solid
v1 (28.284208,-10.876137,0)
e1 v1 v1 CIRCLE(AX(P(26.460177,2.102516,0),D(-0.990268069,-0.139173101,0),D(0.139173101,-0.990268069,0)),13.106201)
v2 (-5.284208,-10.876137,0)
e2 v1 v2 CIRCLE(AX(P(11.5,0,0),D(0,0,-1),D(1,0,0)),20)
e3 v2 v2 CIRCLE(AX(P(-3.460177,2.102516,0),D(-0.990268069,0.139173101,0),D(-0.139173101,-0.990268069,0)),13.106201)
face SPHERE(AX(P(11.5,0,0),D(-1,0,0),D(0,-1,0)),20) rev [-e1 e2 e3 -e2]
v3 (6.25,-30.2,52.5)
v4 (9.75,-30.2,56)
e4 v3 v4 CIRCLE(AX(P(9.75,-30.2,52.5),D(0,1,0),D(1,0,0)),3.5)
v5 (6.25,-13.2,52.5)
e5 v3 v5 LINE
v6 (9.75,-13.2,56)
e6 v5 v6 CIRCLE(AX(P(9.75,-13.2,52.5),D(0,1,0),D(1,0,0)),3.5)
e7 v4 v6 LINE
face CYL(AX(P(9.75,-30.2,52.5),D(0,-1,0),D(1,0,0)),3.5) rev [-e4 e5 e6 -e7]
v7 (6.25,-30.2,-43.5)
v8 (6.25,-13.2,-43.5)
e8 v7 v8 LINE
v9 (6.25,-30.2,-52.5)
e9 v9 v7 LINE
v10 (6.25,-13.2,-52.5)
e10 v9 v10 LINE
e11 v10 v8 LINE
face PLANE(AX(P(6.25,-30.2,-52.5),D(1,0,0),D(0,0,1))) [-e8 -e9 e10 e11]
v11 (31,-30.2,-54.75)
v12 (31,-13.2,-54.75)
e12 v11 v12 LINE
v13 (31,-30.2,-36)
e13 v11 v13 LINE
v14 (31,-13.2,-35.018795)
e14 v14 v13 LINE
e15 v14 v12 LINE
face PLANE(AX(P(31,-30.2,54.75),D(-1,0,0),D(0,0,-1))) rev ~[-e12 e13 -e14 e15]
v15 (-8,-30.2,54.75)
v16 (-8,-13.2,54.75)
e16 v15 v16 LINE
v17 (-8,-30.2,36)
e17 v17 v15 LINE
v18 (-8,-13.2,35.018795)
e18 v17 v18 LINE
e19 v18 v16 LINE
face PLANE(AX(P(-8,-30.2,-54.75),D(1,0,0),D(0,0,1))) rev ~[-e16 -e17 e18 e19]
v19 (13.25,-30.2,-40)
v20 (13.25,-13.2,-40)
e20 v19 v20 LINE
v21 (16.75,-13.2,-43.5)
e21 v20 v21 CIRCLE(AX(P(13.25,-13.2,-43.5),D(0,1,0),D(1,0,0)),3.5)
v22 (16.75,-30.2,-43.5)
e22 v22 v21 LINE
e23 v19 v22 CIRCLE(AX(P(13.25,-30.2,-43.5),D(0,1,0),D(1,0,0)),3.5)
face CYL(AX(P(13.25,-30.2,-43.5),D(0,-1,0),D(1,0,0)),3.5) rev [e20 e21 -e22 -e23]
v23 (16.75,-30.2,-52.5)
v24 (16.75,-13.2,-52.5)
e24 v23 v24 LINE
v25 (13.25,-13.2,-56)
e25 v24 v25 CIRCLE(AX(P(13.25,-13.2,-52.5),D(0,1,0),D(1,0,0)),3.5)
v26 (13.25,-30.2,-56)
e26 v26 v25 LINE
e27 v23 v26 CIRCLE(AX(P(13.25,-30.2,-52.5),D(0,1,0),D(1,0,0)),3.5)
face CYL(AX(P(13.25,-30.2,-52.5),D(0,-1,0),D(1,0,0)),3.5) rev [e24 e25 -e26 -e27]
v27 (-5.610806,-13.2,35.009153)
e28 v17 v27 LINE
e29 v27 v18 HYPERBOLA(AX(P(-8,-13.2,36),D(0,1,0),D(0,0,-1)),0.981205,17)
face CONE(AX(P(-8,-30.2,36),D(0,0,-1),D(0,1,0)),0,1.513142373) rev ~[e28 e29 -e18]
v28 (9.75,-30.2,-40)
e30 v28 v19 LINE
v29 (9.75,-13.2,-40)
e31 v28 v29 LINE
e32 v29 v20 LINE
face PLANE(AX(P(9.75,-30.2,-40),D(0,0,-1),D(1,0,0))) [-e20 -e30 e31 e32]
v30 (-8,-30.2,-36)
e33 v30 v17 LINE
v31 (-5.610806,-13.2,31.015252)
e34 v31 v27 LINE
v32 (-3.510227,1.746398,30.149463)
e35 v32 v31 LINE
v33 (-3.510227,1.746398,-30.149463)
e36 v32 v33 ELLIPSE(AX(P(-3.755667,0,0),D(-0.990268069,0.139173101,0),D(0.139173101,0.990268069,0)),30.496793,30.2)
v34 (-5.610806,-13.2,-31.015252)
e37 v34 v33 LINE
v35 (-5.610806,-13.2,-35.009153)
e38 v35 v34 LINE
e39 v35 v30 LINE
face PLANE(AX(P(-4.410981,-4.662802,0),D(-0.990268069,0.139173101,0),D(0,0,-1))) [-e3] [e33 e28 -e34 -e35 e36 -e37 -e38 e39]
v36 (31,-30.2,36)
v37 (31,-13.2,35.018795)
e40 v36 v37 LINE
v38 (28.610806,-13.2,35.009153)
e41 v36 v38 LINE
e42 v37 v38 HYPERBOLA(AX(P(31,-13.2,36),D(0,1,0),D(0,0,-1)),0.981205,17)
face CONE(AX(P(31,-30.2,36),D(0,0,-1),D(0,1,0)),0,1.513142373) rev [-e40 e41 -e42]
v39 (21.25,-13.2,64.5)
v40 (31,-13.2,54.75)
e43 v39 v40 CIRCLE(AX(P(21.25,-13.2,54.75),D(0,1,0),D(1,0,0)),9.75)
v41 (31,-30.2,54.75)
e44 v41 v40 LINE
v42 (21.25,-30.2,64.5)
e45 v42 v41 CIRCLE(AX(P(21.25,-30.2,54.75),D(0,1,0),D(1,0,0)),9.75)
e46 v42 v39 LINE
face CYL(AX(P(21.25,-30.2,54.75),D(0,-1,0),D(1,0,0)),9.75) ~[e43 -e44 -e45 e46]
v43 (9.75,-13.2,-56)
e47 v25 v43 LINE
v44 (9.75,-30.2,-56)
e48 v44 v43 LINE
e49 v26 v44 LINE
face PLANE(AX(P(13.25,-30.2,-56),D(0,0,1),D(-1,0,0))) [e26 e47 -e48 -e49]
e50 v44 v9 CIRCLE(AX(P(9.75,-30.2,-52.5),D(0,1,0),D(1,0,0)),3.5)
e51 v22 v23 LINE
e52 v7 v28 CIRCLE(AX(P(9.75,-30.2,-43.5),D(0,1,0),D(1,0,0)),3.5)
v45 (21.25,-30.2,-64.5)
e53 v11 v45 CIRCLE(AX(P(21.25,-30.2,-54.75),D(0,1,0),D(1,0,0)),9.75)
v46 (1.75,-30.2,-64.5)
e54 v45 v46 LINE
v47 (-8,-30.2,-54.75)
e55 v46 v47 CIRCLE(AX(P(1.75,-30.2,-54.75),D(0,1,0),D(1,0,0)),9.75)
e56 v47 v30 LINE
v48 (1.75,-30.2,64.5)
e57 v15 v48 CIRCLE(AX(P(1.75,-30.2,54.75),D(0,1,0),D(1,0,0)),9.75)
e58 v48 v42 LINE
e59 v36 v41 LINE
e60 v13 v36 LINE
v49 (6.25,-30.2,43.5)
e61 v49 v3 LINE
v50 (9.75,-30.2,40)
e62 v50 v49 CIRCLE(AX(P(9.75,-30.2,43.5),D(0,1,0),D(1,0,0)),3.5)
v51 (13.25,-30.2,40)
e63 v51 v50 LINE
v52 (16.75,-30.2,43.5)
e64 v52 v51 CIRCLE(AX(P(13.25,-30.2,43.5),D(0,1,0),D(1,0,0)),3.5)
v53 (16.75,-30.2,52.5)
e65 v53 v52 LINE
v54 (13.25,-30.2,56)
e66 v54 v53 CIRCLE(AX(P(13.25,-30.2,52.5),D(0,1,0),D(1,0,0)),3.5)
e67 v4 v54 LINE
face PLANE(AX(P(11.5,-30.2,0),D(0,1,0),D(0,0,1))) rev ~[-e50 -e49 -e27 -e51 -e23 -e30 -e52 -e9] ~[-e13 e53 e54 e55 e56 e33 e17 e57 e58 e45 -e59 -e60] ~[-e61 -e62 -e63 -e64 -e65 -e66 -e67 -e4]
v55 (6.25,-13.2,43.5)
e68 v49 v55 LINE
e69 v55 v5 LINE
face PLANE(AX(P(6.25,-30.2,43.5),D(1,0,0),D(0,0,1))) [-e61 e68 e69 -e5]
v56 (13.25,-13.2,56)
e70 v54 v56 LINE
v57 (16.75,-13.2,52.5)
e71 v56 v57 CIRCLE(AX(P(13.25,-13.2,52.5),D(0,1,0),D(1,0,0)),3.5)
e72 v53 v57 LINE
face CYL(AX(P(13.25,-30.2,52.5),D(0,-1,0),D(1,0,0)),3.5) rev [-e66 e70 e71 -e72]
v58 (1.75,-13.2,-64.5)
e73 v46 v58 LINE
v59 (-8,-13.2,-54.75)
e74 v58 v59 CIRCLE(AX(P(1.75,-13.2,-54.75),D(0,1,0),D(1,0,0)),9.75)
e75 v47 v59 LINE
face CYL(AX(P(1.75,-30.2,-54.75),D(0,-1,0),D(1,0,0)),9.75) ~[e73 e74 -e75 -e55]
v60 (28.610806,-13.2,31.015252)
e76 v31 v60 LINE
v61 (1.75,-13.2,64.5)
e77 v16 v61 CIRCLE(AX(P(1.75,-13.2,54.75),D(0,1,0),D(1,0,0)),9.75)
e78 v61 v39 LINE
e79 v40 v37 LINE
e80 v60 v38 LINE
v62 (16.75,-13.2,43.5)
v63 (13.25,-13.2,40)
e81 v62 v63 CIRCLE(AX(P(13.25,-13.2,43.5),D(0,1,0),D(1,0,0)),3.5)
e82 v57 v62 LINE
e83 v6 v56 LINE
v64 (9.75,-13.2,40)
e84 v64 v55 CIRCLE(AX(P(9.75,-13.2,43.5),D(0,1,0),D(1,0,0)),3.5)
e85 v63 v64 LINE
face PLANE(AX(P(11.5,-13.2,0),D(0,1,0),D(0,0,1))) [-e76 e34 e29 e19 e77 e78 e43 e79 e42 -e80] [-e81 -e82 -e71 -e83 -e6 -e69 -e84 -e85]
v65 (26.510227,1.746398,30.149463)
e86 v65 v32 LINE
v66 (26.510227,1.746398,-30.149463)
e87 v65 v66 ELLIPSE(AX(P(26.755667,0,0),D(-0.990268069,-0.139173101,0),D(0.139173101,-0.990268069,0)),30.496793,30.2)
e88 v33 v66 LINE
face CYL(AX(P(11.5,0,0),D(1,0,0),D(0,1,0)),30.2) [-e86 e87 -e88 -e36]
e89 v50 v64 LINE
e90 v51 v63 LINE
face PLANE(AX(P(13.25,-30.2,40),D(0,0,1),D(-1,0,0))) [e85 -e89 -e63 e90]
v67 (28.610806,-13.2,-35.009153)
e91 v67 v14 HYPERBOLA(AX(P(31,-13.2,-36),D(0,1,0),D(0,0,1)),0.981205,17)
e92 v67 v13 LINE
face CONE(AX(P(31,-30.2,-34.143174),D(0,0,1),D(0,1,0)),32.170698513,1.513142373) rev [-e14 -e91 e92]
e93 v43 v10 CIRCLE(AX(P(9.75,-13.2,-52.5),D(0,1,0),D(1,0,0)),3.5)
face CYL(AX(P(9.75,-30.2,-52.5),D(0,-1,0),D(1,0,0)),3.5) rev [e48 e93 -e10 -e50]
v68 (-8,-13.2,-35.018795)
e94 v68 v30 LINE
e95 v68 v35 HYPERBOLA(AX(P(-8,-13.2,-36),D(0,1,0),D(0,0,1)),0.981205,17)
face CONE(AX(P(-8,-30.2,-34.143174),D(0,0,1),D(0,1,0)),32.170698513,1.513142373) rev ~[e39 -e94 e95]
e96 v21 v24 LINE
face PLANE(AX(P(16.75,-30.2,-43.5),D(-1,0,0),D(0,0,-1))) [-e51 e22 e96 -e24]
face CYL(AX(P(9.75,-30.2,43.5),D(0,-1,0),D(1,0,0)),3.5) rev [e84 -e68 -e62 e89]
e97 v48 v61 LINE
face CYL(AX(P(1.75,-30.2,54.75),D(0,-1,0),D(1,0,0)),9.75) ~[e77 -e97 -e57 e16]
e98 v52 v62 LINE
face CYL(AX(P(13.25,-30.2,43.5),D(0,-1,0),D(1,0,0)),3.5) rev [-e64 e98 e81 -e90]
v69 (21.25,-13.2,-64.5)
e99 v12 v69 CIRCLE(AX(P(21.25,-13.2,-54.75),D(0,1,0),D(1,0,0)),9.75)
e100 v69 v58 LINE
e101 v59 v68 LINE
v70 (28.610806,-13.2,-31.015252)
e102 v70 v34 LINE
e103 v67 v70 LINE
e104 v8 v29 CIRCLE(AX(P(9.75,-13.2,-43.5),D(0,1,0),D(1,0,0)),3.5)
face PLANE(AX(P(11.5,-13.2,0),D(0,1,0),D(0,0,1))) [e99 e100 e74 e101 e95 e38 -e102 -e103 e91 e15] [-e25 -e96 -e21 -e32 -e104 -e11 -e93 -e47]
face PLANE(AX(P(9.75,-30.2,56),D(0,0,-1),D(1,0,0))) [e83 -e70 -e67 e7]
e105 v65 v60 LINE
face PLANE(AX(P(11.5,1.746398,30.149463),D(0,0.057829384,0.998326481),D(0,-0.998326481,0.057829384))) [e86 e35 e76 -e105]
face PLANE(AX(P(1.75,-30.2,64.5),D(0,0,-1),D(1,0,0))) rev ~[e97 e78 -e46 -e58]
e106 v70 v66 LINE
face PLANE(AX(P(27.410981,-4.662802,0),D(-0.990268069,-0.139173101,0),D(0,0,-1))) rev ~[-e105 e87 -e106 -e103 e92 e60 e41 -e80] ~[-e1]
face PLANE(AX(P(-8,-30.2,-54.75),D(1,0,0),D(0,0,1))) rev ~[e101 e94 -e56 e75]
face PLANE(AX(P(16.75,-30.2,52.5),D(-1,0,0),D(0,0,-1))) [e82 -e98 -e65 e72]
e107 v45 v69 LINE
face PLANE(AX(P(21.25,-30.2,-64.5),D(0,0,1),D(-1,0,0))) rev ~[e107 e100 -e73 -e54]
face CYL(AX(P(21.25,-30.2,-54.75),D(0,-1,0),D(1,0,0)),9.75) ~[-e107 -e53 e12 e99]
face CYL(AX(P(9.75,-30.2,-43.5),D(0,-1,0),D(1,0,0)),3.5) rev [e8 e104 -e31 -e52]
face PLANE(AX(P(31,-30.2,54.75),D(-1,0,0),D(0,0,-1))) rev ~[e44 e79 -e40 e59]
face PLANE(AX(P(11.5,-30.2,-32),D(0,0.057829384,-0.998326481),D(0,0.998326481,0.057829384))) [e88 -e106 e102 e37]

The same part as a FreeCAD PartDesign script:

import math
import FreeCAD as App
import Part
import Sketcher
Q = App.Units.Quantity

doc = App.newDocument("Part")
params = doc.addObject("Spreadsheet::Sheet", "Params")
for row, (alias, value) in enumerate([
    ("sketch1_radius", "3.5 mm"),
    ("sketch1_height", "9 mm"),
    ("sketch1_radius2", "9.75 mm"),
    ("sketch1_width", "19.5 mm"),
    ("sketch1_width2", "3.5 mm"),
    ("pad1_length", "17 mm"),
    ("sketch2_radius", "30.2 mm"),
    ("sketch2_height", "64 mm"),
    ("sketch2_length", "32 mm"),
    ("pad2_length", "19.5 mm"),
    ("pad2_length2", "19.5 mm"),
    ("sketch3_radius", "34.2 mm"),
    ("sketch3_height", "72 mm"),
    ("groove_angle", "8 deg"),
    ("sketch4_radius", "34.2 mm"),
    ("sketch4_height", "72 mm"),
    ("groove2_angle", "8 deg"),
    ("sketch5_radius", "20 mm"),
    ("groove3_angle", "360 deg"),
], start=1):
    params.set(f"A{row}", alias)
    params.set(f"B{row}", "=" + value)
    params.setAlias(f"B{row}", alias)

body = doc.addObject("PartDesign::Body", "Body")

# Sketch on XZ plane
sketch1 = body.newObject("Sketcher::SketchObject", "Sketch")
sketch1.AttachmentSupport = (doc.getObject("XZ_Plane"), [""])
sketch1.MapMode = "FlatFace"
sketch1.AttachmentOffset = App.Placement(App.Vector(0, 0, 30.2), App.Rotation())
sketch1.addGeometry([
    Part.LineSegment(App.Vector(-8, 54.8, 0), App.Vector(-8, -54.8, 0)),  # 0
    Part.ArcOfCircle(Part.Circle(App.Vector(1.8, -54.8, 0), App.Vector(0, 0, 1), 9.8), math.radians(180), math.radians(270)),  # 1
    Part.LineSegment(App.Vector(1.8, -64.5, 0), App.Vector(21.2, -64.5, 0)),  # 2
    Part.ArcOfCircle(Part.Circle(App.Vector(21.2, -54.8, 0), App.Vector(0, 0, 1), 9.8), math.radians(-90), math.radians(0)),  # 3
    Part.LineSegment(App.Vector(31, -54.8, 0), App.Vector(31, 54.8, 0)),  # 4
    Part.ArcOfCircle(Part.Circle(App.Vector(21.2, 54.8, 0), App.Vector(0, 0, 1), 9.8), math.radians(0), math.radians(90)),  # 5
    Part.LineSegment(App.Vector(21.2, 64.5, 0), App.Vector(1.8, 64.5, 0)),  # 6
    Part.ArcOfCircle(Part.Circle(App.Vector(1.8, 54.8, 0), App.Vector(0, 0, 1), 9.8), math.radians(90), math.radians(180)),  # 7
    Part.LineSegment(App.Vector(6.2, -52.5, 0), App.Vector(6.2, -43.5, 0)),  # 8
    Part.ArcOfCircle(Part.Circle(App.Vector(9.8, -43.5, 0), App.Vector(0, 0, 1), 3.5), math.radians(90), math.radians(180)),  # 9
    Part.LineSegment(App.Vector(9.8, -40, 0), App.Vector(13.2, -40, 0)),  # 10
    Part.ArcOfCircle(Part.Circle(App.Vector(13.2, -43.5, 0), App.Vector(0, 0, 1), 3.5), math.radians(0), math.radians(90)),  # 11
    Part.LineSegment(App.Vector(16.8, -43.5, 0), App.Vector(16.8, -52.5, 0)),  # 12
    Part.ArcOfCircle(Part.Circle(App.Vector(13.2, -52.5, 0), App.Vector(0, 0, 1), 3.5), math.radians(-90), math.radians(0)),  # 13
    Part.LineSegment(App.Vector(13.2, -56, 0), App.Vector(9.8, -56, 0)),  # 14
    Part.ArcOfCircle(Part.Circle(App.Vector(9.8, -52.5, 0), App.Vector(0, 0, 1), 3.5), math.radians(180), math.radians(270)),  # 15
    Part.ArcOfCircle(Part.Circle(App.Vector(9.8, 43.5, 0), App.Vector(0, 0, 1), 3.5), math.radians(180), math.radians(270)),  # 16
    Part.LineSegment(App.Vector(6.2, 43.5, 0), App.Vector(6.2, 52.5, 0)),  # 17
    Part.ArcOfCircle(Part.Circle(App.Vector(9.8, 52.5, 0), App.Vector(0, 0, 1), 3.5), math.radians(90), math.radians(180)),  # 18
    Part.LineSegment(App.Vector(9.8, 56, 0), App.Vector(13.2, 56, 0)),  # 19
    Part.ArcOfCircle(Part.Circle(App.Vector(13.2, 52.5, 0), App.Vector(0, 0, 1), 3.5), math.radians(0), math.radians(90)),  # 20
    Part.LineSegment(App.Vector(16.8, 52.5, 0), App.Vector(16.8, 43.5, 0)),  # 21
    Part.ArcOfCircle(Part.Circle(App.Vector(13.2, 43.5, 0), App.Vector(0, 0, 1), 3.5), math.radians(-90), math.radians(0)),  # 22
    Part.LineSegment(App.Vector(13.2, 40, 0), App.Vector(9.8, 40, 0)),  # 23
], False)
sketch1.addConstraint([
    Sketcher.Constraint("Tangent", 0, 2, 1, 1),
    Sketcher.Constraint("Tangent", 1, 2, 2, 1),
    Sketcher.Constraint("Tangent", 2, 2, 3, 1),
    Sketcher.Constraint("Tangent", 3, 2, 4, 1),
    Sketcher.Constraint("Tangent", 4, 2, 5, 1),
    Sketcher.Constraint("Tangent", 5, 2, 6, 1),
    Sketcher.Constraint("Tangent", 6, 2, 7, 1),
    Sketcher.Constraint("Tangent", 7, 2, 0, 1),
    Sketcher.Constraint("Tangent", 8, 2, 9, 2),
    Sketcher.Constraint("Tangent", 9, 1, 10, 1),
    Sketcher.Constraint("Tangent", 10, 2, 11, 2),
    Sketcher.Constraint("Tangent", 11, 1, 12, 1),
    Sketcher.Constraint("Tangent", 12, 2, 13, 2),
    Sketcher.Constraint("Tangent", 13, 1, 14, 1),
    Sketcher.Constraint("Tangent", 14, 2, 15, 2),
    Sketcher.Constraint("Tangent", 15, 1, 8, 1),
    Sketcher.Constraint("Tangent", 16, 1, 17, 1),
    Sketcher.Constraint("Tangent", 17, 2, 18, 2),
    Sketcher.Constraint("Tangent", 18, 1, 19, 1),
    Sketcher.Constraint("Tangent", 19, 2, 20, 2),
    Sketcher.Constraint("Tangent", 20, 1, 21, 1),
    Sketcher.Constraint("Tangent", 21, 2, 22, 2),
    Sketcher.Constraint("Tangent", 22, 1, 23, 1),
    Sketcher.Constraint("Tangent", 23, 2, 16, 2),
    Sketcher.Constraint("Vertical", 0),
    Sketcher.Constraint("Horizontal", 2),
    Sketcher.Constraint("Vertical", 4),
    Sketcher.Constraint("Horizontal", 6),
    Sketcher.Constraint("Vertical", 8),
    Sketcher.Constraint("Horizontal", 10),
    Sketcher.Constraint("Vertical", 12),
    Sketcher.Constraint("Horizontal", 14),
    Sketcher.Constraint("Vertical", 17),
    Sketcher.Constraint("Horizontal", 19),
    Sketcher.Constraint("Vertical", 21),
    Sketcher.Constraint("Horizontal", 23),
    Sketcher.Constraint("Equal", 1, 3),
    Sketcher.Constraint("Equal", 3, 5),
    Sketcher.Constraint("Equal", 5, 7),
    Sketcher.Constraint("Equal", 9, 11),
    Sketcher.Constraint("Equal", 11, 13),
    Sketcher.Constraint("Equal", 13, 15),
    Sketcher.Constraint("Equal", 15, 16),
    Sketcher.Constraint("Equal", 16, 18),
    Sketcher.Constraint("Equal", 18, 20),
    Sketcher.Constraint("Equal", 20, 22),
    Sketcher.Constraint("Symmetric", 9, 3, 16, 3, -1),
    Sketcher.Constraint("Symmetric", 13, 3, 20, 3, -1),
    Sketcher.Constraint("Radius", 9, Q("3.5 mm")),
    Sketcher.Constraint("DistanceY", 8, 1, 8, 2, Q("9 mm")),
    Sketcher.Constraint("Radius", 1, Q("9.75 mm")),
    Sketcher.Constraint("DistanceX", 2, 1, 2, 2, Q("19.5 mm")),
    Sketcher.Constraint("DistanceX", 10, 1, 10, 2, Q("3.5 mm")),
    Sketcher.Constraint("DistanceY", 0, 2, 0, 1, Q("109.5 mm")),
    Sketcher.Constraint("DistanceX", 0, 2, -1, 1, Q("8 mm")),
    Sketcher.Constraint("DistanceY", 9, 1, -1, 1, Q("40 mm")),
    Sketcher.Constraint("DistanceX", 1, 3, 9, 3, Q("8 mm")),
    Sketcher.Constraint("DistanceY", 1, 2, 15, 3, Q("12 mm")),
])
sketch1.setExpression("Constraints[48]", "Params.sketch1_radius")
sketch1.setExpression("Constraints[49]", "Params.sketch1_height")
sketch1.setExpression("Constraints[50]", "Params.sketch1_radius2")
sketch1.setExpression("Constraints[51]", "Params.sketch1_width")
sketch1.setExpression("Constraints[52]", "Params.sketch1_width2")
pad1 = body.newObject("PartDesign::Pad", "Pad")
pad1.Profile = sketch1
pad1.setExpression("Length", "Params.pad1_length")
pad1.Reversed = True

# Sketch on YZ plane
sketch2 = body.newObject("Sketcher::SketchObject", "Sketch001")
sketch2.AttachmentSupport = (doc.getObject("YZ_Plane"), [""])
sketch2.MapMode = "FlatFace"
sketch2.AttachmentOffset = App.Placement(App.Vector(0, 0, 11.5), App.Rotation())
sketch2.addGeometry([
    Part.LineSegment(App.Vector(2, 30, 0), App.Vector(-30, 32, 0)),
    Part.LineSegment(App.Vector(-30, 32, 0), App.Vector(-30, -32, 0)),
    Part.LineSegment(App.Vector(-30, -32, 0), App.Vector(2, -30, 0)),
    Part.ArcOfCircle(Part.Circle(App.Vector(0, 0, 0), App.Vector(0, 0, 1), 30), math.radians(-87), math.radians(87)),
], False)
sketch2.addConstraint([
    Sketcher.Constraint("Coincident", 0, 2, 1, 1),
    Sketcher.Constraint("Coincident", 1, 2, 2, 1),
    Sketcher.Constraint("Tangent", 2, 2, 3, 1),
    Sketcher.Constraint("Tangent", 3, 2, 0, 1),
    Sketcher.Constraint("Vertical", 1),
    Sketcher.Constraint("Coincident", 3, 3, -1, 1),
    Sketcher.Constraint("Vertical", 2, 2, 3, 2),
    Sketcher.Constraint("Radius", 3, Q("30.2 mm")),
    Sketcher.Constraint("DistanceY", 1, 2, 1, 1, Q("64 mm")),
    Sketcher.Constraint("Distance", 0, Q("32 mm")),
])
sketch2.setExpression("Constraints[7]", "Params.sketch2_radius")
sketch2.setExpression("Constraints[8]", "Params.sketch2_height")
sketch2.setExpression("Constraints[9]", "Params.sketch2_length")
pad2 = body.newObject("PartDesign::Pad", "Pad001")
pad2.Profile = sketch2
pad2.Type = "TwoLengths"
pad2.setExpression("Length", "Params.pad2_length")
pad2.setExpression("Length2", "Params.pad2_length2")
pad2.Reversed = True

# Sketch on YZ plane
sketch3 = body.newObject("Sketcher::SketchObject", "Sketch002")
sketch3.AttachmentSupport = (doc.getObject("YZ_Plane"), [""])
sketch3.MapMode = "FlatFace"
sketch3.AttachmentOffset = App.Placement(App.Vector(0, 0, 31), App.Rotation())
sketch3.addGeometry([
    Part.LineSegment(App.Vector(2, 34, 0), App.Vector(-30, 36, 0)),
    Part.LineSegment(App.Vector(-30, 36, 0), App.Vector(-30, -36, 0)),
    Part.LineSegment(App.Vector(-30, -36, 0), App.Vector(2, -34, 0)),
    Part.ArcOfCircle(Part.Circle(App.Vector(0, 0, 0), App.Vector(0, 0, 1), 34), math.radians(-87), math.radians(87)),
], False)
sketch3.addGeometry(Part.LineSegment(App.Vector(-30, -36, 0), App.Vector(-30, 36, 0)), True)  # axis
sketch3.addConstraint([
    Sketcher.Constraint("Coincident", 0, 2, 1, 1),
    Sketcher.Constraint("Coincident", 1, 2, 2, 1),
    Sketcher.Constraint("Tangent", 2, 2, 3, 1),
    Sketcher.Constraint("Tangent", 3, 2, 0, 1),
    Sketcher.Constraint("Vertical", 1),
    Sketcher.Constraint("Vertical", 4),
    Sketcher.Constraint("Coincident", 3, 3, -1, 1),
    Sketcher.Constraint("Coincident", 4, 1, 1, 2),
    Sketcher.Constraint("Vertical", 2, 2, 3, 2),
    Sketcher.Constraint("Equal", 1, 4),
    Sketcher.Constraint("Radius", 3, Q("34.2 mm")),
    Sketcher.Constraint("DistanceY", 1, 2, 1, 1, Q("72 mm")),
    Sketcher.Constraint("DistanceX", 0, 2, -1, 1, Q("30.2 mm")),
])
sketch3.setExpression("Constraints[10]", "Params.sketch3_radius")
sketch3.setExpression("Constraints[11]", "Params.sketch3_height")
groove = body.newObject("PartDesign::Groove", "Groove")
groove.Profile = sketch3
groove.ReferenceAxis = (sketch3, ["Axis0"])
groove.setExpression("Angle", "Params.groove_angle")

# Sketch on YZ plane
sketch4 = body.newObject("Sketcher::SketchObject", "Sketch003")
sketch4.AttachmentSupport = (doc.getObject("YZ_Plane"), [""])
sketch4.MapMode = "FlatFace"
sketch4.AttachmentOffset = App.Placement(App.Vector(0, 0, -8), App.Rotation())
sketch4.addGeometry([
    Part.LineSegment(App.Vector(2, 34, 0), App.Vector(-30, 36, 0)),
    Part.LineSegment(App.Vector(-30, 36, 0), App.Vector(-30, -36, 0)),
    Part.LineSegment(App.Vector(-30, -36, 0), App.Vector(2, -34, 0)),
    Part.ArcOfCircle(Part.Circle(App.Vector(0, 0, 0), App.Vector(0, 0, 1), 34), math.radians(-87), math.radians(87)),
], False)
sketch4.addGeometry(Part.LineSegment(App.Vector(-30, 36, 0), App.Vector(-30, -36, 0)), True)  # axis
sketch4.addConstraint([
    Sketcher.Constraint("Coincident", 0, 2, 1, 1),
    Sketcher.Constraint("Coincident", 1, 2, 2, 1),
    Sketcher.Constraint("Tangent", 2, 2, 3, 1),
    Sketcher.Constraint("Tangent", 3, 2, 0, 1),
    Sketcher.Constraint("Vertical", 1),
    Sketcher.Constraint("Vertical", 4),
    Sketcher.Constraint("Coincident", 3, 3, -1, 1),
    Sketcher.Constraint("Coincident", 4, 1, 0, 2),
    Sketcher.Constraint("Vertical", 2, 2, 3, 2),
    Sketcher.Constraint("Equal", 1, 4),
    Sketcher.Constraint("Radius", 3, Q("34.2 mm")),
    Sketcher.Constraint("DistanceY", 1, 2, 1, 1, Q("72 mm")),
    Sketcher.Constraint("DistanceX", 0, 2, -1, 1, Q("30.2 mm")),
])
sketch4.setExpression("Constraints[10]", "Params.sketch4_radius")
sketch4.setExpression("Constraints[11]", "Params.sketch4_height")
groove2 = body.newObject("PartDesign::Groove", "Groove001")
groove2.Profile = sketch4
groove2.ReferenceAxis = (sketch4, ["Axis0"])
groove2.setExpression("Angle", "Params.groove2_angle")

# Sketch on XY plane
sketch5 = body.newObject("Sketcher::SketchObject", "Sketch004")
sketch5.AttachmentSupport = (doc.getObject("XY_Plane"), [""])
sketch5.MapMode = "FlatFace"
sketch5.addGeometry([
    Part.ArcOfCircle(Part.Circle(App.Vector(12, 0, 0), App.Vector(0, 0, 1), 20), math.radians(180), math.radians(360)),
    Part.LineSegment(App.Vector(32, 0, 0), App.Vector(-8, 0, 0)),
], False)
sketch5.addConstraint([
    Sketcher.Constraint("Coincident", 0, 1, 1, 2),
    Sketcher.Constraint("Coincident", 1, 1, 0, 2),
    Sketcher.Constraint("Horizontal", 1),
    Sketcher.Constraint("PointOnObject", 0, 3, -1),
    Sketcher.Constraint("PointOnObject", 0, 1, -1),
    Sketcher.Constraint("Radius", 0, Q("20 mm")),
    Sketcher.Constraint("DistanceX", -1, 1, 0, 3, Q("11.5 mm")),
])
sketch5.setExpression("Constraints[5]", "Params.sketch5_radius")
groove3 = body.newObject("PartDesign::Groove", "Groove002")
groove3.Profile = sketch5
groove3.ReferenceAxis = (sketch5, ["H_Axis"])
groove3.setExpression("Angle", "Params.groove3_angle")

doc.recompute()
